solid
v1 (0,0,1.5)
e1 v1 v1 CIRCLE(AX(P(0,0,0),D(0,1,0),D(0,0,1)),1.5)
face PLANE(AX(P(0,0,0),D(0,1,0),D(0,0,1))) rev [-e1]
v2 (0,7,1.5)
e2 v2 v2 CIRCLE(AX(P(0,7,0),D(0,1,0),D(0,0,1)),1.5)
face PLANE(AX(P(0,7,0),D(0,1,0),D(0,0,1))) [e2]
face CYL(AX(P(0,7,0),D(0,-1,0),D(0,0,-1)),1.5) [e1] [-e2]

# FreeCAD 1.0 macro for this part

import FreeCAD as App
import Part
import Sketcher
Q = App.Units.Quantity

doc = App.newDocument("Part")
body = doc.addObject("PartDesign::Body", "Body")

sketch1 = body.newObject("Sketcher::SketchObject", "Sketch")
sketch1.AttachmentSupport = (doc.getObject("XZ_Plane"), [""])
sketch1.MapMode = "FlatFace"
sketch1.addGeometry(Part.Circle(App.Vector(0, 0, 0), App.Vector(0, 0, 1), 1.5), False)
sketch1.addConstraint([
    Sketcher.Constraint("Coincident", 0, 3, -1, 1),
    Sketcher.Constraint("Diameter", 0, Q("3 mm")),
])
pad1 = body.newObject("PartDesign::Pad", "Pad")
pad1.Profile = sketch1
pad1.Length = 7
pad1.Reversed = True

doc.recompute()
